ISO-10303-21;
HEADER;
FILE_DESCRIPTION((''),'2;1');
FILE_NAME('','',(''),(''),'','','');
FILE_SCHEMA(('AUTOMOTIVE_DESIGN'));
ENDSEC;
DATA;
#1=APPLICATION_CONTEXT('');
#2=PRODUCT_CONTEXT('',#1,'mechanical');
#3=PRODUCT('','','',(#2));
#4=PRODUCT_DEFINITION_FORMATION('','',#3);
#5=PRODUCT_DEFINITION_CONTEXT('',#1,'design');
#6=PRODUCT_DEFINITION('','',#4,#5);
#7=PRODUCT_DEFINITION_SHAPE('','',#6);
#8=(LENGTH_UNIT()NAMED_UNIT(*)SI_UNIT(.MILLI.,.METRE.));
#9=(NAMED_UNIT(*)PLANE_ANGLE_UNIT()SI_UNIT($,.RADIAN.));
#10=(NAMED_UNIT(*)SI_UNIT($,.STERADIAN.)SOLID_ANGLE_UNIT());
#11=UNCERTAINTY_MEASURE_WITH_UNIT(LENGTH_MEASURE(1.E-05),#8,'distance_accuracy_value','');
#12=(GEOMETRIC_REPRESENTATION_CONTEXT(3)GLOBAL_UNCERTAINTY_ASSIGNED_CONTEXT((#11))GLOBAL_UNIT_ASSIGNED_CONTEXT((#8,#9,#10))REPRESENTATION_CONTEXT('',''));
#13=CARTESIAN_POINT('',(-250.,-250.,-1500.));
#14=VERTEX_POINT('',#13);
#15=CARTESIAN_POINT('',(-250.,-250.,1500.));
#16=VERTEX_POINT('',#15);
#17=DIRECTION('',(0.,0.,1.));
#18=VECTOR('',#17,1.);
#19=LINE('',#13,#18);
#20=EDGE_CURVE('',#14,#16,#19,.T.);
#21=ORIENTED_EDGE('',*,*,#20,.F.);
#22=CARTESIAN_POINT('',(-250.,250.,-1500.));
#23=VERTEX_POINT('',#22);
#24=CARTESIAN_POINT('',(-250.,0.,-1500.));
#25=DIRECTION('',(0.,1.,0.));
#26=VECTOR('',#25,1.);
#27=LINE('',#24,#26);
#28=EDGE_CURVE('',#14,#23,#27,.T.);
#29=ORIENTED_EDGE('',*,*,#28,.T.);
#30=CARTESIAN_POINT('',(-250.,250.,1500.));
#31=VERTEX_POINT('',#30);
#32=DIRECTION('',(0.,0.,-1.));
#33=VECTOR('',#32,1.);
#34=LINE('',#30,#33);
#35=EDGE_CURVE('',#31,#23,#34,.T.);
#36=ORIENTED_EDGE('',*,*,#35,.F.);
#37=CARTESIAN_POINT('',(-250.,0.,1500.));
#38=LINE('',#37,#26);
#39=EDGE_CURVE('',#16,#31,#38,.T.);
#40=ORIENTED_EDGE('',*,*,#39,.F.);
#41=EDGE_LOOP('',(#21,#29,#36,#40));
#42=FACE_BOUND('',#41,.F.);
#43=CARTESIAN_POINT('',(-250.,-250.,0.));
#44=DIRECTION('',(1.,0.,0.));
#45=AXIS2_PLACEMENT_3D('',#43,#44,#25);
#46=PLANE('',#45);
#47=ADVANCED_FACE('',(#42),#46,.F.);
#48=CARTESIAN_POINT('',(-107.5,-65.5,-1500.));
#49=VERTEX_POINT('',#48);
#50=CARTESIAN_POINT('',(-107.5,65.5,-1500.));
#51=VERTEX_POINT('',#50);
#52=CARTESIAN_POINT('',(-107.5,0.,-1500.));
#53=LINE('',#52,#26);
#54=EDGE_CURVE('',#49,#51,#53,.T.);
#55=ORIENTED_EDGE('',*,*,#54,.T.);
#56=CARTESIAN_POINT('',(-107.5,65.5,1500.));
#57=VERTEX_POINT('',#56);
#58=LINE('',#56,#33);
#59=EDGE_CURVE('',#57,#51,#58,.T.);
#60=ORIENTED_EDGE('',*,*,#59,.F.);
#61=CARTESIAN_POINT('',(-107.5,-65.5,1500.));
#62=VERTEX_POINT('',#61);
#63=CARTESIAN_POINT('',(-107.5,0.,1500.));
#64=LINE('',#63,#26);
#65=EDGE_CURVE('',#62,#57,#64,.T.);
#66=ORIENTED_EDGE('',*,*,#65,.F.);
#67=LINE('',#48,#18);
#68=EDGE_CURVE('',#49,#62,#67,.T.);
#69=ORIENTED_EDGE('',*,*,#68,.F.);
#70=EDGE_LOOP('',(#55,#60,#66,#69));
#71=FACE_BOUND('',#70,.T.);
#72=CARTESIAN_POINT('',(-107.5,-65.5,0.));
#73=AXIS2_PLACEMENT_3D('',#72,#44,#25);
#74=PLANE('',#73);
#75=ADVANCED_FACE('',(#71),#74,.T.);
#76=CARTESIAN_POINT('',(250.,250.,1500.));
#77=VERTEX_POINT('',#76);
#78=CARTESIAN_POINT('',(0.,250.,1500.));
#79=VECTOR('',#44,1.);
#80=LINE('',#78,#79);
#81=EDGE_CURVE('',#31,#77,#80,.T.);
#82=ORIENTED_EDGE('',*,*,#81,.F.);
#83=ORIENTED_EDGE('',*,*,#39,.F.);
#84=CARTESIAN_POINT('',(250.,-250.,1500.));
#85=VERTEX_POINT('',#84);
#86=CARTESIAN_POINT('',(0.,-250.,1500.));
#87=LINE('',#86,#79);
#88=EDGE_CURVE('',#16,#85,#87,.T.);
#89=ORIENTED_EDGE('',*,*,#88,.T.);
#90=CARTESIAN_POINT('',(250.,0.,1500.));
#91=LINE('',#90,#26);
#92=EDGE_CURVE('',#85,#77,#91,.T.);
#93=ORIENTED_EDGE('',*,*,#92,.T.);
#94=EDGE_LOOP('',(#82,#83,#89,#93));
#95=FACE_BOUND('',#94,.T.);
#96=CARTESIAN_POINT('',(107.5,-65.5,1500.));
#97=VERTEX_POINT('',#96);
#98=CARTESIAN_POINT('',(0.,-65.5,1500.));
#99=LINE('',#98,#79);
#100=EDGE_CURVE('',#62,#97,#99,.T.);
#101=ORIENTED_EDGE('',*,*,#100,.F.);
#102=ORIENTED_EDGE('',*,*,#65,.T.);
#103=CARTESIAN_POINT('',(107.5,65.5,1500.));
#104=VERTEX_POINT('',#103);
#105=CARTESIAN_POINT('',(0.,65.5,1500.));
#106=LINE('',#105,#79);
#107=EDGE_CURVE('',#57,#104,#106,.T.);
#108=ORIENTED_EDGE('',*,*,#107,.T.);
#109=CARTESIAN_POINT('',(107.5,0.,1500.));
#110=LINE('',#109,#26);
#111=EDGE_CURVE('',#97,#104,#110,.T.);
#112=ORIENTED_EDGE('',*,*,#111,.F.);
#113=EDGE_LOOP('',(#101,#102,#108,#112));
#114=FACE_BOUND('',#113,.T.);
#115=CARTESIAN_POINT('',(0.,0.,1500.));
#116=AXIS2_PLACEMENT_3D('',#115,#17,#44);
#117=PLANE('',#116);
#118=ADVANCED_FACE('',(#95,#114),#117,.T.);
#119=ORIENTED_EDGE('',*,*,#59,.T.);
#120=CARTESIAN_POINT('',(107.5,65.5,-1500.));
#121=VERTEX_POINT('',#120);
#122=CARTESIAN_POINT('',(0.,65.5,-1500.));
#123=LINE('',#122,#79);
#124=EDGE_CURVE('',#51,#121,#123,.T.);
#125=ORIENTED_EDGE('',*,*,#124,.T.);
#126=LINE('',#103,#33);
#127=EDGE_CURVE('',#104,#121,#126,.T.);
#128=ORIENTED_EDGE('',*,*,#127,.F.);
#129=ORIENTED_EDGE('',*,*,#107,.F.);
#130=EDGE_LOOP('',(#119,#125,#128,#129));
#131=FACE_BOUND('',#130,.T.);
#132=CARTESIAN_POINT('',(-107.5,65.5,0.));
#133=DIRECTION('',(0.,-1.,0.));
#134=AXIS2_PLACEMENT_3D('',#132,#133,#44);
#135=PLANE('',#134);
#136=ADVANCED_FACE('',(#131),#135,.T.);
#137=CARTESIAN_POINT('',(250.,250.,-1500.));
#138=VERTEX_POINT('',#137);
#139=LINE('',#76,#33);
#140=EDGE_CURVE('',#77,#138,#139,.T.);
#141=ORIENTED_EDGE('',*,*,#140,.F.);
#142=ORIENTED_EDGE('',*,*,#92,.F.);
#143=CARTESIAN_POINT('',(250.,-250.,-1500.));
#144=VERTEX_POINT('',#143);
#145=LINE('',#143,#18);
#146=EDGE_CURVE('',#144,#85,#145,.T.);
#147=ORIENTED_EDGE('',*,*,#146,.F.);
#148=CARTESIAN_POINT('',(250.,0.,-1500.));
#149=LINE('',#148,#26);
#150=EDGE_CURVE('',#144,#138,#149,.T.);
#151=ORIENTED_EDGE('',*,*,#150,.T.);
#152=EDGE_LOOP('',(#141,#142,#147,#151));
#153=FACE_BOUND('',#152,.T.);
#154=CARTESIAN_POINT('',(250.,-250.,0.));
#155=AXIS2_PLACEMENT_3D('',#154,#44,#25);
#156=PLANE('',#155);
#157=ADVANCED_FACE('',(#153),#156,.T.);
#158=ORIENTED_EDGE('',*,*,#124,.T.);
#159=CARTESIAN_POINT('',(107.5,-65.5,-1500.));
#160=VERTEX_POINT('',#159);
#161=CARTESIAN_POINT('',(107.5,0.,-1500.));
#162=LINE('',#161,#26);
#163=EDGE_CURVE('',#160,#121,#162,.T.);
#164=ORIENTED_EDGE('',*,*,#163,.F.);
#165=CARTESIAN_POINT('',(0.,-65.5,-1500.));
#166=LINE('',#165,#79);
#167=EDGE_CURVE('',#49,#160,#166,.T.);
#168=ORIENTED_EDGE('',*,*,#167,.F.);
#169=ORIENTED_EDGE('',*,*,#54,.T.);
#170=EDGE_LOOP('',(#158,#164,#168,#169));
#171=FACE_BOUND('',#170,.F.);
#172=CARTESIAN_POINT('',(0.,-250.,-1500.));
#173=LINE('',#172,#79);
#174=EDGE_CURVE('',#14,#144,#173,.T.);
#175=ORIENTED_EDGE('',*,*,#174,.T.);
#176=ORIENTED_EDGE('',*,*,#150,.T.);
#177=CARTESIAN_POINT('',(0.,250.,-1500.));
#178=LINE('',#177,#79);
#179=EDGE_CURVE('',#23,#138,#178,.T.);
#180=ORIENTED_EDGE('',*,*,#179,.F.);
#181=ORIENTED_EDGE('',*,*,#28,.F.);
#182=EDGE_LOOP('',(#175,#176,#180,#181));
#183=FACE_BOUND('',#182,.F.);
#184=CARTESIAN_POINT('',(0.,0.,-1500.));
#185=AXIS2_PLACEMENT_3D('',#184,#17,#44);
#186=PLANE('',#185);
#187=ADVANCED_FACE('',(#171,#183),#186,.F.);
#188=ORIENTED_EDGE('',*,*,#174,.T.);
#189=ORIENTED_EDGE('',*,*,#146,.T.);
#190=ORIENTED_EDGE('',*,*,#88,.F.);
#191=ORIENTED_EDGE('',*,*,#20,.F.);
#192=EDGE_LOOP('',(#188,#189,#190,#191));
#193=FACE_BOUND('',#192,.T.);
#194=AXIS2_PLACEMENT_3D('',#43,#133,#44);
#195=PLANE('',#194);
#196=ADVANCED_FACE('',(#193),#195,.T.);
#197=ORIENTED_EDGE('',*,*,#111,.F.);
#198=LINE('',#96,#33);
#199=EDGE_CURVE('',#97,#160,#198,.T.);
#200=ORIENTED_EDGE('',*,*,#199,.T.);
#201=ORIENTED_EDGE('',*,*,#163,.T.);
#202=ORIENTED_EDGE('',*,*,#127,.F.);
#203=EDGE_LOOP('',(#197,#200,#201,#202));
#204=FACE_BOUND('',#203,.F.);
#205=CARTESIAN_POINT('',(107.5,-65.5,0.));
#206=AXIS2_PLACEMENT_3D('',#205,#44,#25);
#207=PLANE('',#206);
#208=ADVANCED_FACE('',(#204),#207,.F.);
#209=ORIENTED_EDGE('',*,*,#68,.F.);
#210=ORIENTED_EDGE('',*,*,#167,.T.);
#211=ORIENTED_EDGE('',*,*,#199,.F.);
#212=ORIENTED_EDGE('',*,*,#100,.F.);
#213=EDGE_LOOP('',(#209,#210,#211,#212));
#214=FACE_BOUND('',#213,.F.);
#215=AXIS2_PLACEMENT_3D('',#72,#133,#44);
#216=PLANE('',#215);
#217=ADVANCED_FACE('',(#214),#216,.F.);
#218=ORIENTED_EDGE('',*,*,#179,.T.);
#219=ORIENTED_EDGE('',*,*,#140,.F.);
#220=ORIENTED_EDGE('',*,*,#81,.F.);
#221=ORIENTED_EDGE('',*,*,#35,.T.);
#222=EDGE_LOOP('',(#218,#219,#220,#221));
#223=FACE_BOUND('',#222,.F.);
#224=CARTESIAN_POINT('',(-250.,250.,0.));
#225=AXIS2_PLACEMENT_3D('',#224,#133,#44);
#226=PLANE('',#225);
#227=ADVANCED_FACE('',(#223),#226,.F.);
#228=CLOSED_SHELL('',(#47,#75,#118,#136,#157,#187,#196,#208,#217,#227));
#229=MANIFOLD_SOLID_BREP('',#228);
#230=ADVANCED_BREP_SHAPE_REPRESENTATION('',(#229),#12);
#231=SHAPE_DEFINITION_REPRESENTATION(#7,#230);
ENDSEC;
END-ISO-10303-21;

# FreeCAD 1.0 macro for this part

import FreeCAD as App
import Part
import Sketcher
from FreeCAD import Vector
Q = App.Units.Quantity


def add_polygon(sketch, points):
    """Adds a closed chain of lines whose ends are joined by coincident constraints."""
    first, n = sketch.GeometryCount, len(points)
    for a, b in zip(points, points[1:] + points[:1]):
        sketch.addGeometry(Part.LineSegment(App.Vector(*a, 0), App.Vector(*b, 0)), False)
    for i in range(n):
        sketch.addConstraint(Sketcher.Constraint("Coincident", first + i, 2, first + (i + 1) % n, 1))

doc = App.newDocument("Part")
body = doc.addObject("PartDesign::Body", "Body")

sketch1 = doc.addObject("Sketcher::SketchObject", "Sketch")
body.addObject(sketch1)
sketch1.AttachmentSupport = (doc.XY_Plane, [""])
sketch1.MapMode = "FlatFace"
add_polygon(sketch1, [(-250, 250), (-250, -250), (250, -250), (250, 250)])
add_polygon(sketch1, [(107.5, -65.5), (-107.5, -65.5), (-107.5, 65.5), (107.5, 65.5)])
sketch1.addConstraint([
    Sketcher.Constraint("Vertical", 0),
    Sketcher.Constraint("Horizontal", 1),
    Sketcher.Constraint("Vertical", 2),
    Sketcher.Constraint("Horizontal", 3),
    Sketcher.Constraint("Horizontal", 4),
    Sketcher.Constraint("Vertical", 5),
    Sketcher.Constraint("Horizontal", 6),
    Sketcher.Constraint("Vertical", 7),
    Sketcher.Constraint("Symmetric", 0, 2, 2, 2, -1, 1),
    Sketcher.Constraint("Symmetric", 4, 2, 6, 2, -1, 1),
    Sketcher.Constraint("Equal", 3, 0),
    Sketcher.Constraint("DistanceX", 1, 1, 1, 2, Q("500 mm")),
    Sketcher.Constraint("DistanceX", 4, 2, 4, 1, Q("215 mm")),
    Sketcher.Constraint("DistanceY", 5, 1, 5, 2, Q("131 mm")),
])
pad1 = doc.addObject("PartDesign::Pad", "Pad")
body.addObject(pad1)
pad1.Profile = sketch1
pad1.Length = 3000
pad1.Midplane = True

doc.recompute()
